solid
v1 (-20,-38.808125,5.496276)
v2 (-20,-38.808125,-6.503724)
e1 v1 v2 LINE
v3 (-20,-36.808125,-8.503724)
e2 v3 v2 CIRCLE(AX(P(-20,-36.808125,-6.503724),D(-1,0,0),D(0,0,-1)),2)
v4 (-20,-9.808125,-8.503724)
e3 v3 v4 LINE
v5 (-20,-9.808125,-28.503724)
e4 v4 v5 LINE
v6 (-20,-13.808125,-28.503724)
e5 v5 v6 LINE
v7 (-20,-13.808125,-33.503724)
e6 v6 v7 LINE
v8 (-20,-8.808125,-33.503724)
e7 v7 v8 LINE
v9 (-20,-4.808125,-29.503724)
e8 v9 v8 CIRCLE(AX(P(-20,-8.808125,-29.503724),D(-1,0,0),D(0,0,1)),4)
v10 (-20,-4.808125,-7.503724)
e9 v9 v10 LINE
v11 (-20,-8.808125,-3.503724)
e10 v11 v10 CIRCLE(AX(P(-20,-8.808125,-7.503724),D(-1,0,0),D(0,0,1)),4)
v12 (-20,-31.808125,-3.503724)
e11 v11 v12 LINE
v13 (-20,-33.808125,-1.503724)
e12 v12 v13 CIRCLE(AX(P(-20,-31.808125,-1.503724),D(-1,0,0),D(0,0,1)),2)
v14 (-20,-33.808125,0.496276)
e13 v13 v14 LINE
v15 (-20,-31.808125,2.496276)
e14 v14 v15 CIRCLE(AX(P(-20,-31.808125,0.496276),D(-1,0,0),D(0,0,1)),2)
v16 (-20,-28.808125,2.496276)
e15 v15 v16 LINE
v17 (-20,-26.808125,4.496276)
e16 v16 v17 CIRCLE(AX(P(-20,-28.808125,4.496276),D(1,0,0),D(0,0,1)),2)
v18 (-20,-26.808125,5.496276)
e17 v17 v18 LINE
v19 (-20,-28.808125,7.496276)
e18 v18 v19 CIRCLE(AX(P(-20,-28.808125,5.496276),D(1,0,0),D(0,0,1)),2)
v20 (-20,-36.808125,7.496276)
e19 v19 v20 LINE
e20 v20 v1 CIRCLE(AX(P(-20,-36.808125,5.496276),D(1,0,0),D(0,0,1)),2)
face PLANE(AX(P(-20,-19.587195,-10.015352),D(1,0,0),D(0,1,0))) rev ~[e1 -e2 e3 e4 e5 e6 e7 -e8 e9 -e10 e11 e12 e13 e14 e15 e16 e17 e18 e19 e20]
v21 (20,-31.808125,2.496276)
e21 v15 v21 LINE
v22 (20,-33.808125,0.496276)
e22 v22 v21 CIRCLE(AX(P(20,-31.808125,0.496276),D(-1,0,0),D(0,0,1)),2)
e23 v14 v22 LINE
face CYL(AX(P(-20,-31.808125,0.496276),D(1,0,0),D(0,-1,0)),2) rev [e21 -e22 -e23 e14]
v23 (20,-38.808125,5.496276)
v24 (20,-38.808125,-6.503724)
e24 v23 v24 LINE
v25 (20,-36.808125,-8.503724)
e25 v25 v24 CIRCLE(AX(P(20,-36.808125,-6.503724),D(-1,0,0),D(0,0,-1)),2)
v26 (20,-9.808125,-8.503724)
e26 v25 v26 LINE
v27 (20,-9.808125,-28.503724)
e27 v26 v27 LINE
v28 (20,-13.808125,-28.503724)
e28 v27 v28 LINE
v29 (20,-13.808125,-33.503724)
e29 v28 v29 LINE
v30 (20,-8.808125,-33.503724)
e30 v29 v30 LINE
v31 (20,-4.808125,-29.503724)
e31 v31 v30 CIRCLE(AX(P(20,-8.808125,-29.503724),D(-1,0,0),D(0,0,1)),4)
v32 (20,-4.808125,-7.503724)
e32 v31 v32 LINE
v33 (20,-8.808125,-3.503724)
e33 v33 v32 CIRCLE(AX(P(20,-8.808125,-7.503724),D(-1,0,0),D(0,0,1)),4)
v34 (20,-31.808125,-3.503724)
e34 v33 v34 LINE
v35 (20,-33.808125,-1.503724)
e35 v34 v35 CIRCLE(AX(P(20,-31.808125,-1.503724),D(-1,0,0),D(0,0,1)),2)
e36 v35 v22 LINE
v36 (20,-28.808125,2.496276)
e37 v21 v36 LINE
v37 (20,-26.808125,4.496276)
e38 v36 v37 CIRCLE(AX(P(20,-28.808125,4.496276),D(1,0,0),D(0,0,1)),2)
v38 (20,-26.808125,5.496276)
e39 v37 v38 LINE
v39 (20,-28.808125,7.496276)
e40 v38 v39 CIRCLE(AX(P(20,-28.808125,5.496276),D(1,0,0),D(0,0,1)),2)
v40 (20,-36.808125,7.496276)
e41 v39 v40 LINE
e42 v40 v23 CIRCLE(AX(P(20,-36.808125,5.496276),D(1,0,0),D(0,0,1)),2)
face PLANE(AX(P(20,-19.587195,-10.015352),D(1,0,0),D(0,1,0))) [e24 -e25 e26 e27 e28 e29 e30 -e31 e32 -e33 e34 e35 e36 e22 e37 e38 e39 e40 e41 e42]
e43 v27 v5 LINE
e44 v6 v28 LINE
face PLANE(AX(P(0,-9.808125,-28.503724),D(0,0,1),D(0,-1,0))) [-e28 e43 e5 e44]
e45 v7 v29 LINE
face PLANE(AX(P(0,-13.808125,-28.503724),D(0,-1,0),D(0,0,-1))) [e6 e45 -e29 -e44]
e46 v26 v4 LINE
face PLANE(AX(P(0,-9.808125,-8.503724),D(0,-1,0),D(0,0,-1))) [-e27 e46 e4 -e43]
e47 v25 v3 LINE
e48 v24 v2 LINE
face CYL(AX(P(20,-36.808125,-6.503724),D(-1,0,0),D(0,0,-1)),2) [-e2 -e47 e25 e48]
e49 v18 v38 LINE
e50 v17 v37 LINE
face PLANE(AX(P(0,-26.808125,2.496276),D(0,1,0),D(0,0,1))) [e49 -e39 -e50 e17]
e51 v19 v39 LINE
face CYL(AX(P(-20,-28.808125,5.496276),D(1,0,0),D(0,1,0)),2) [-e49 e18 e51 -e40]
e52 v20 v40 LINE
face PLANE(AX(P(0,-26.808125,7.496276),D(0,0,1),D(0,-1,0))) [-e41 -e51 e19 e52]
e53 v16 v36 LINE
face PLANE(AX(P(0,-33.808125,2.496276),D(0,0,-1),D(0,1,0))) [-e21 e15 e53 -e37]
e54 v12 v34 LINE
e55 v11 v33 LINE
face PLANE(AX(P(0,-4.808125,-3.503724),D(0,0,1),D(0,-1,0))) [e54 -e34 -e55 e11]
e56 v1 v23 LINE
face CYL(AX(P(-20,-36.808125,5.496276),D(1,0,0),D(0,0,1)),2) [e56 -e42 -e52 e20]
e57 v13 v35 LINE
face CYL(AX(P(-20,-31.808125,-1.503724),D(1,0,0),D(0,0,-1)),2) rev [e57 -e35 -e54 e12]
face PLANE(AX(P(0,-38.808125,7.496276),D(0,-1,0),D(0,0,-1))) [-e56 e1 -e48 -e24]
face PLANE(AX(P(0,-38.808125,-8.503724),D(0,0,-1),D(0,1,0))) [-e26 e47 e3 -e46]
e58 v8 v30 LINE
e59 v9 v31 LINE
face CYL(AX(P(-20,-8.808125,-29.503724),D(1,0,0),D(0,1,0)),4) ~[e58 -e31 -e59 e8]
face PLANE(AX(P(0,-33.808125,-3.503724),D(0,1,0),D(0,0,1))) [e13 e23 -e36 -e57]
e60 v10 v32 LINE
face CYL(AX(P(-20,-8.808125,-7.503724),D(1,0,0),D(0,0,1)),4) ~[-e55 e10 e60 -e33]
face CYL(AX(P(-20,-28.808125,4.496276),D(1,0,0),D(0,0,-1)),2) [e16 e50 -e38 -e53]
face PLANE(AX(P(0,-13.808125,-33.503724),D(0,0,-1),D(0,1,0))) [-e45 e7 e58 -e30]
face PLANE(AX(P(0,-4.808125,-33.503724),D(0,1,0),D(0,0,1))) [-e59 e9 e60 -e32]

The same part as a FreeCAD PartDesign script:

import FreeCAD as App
import Part
import Sketcher


def edges_at(feature, points):
    """Names of the edges that pass closest to the given points."""
    edges = feature.Shape.Edges
    near = lambda p: min(range(len(edges)), key=lambda i: edges[i].distToShape(Part.Vertex(*p))[0])
    return sorted({f"Edge{near(p) + 1}" for p in points})

doc = App.newDocument("Part")
body = doc.addObject("PartDesign::Body", "Body")

sketch1 = body.newObject("Sketcher::SketchObject", "Sketch")
sketch1.AttachmentSupport = (doc.getObject("YZ_Plane"), [""])
sketch1.MapMode = "FlatFace"
sketch1.addGeometry(Part.LineSegment(App.Vector(-9.8, -28.5, 0), App.Vector(-13.8, -28.5, 0)), False)
sketch1.addGeometry(Part.LineSegment(App.Vector(-13.8, -28.5, 0), App.Vector(-13.8, -33.5, 0)), False)
sketch1.addGeometry(Part.LineSegment(App.Vector(-13.8, -33.5, 0), App.Vector(-4.8, -33.5, 0)), False)
sketch1.addGeometry(Part.LineSegment(App.Vector(-4.8, -33.5, 0), App.Vector(-4.8, -3.5, 0)), False)
sketch1.addGeometry(Part.LineSegment(App.Vector(-4.8, -3.5, 0), App.Vector(-33.8, -3.5, 0)), False)
sketch1.addGeometry(Part.LineSegment(App.Vector(-33.8, -3.5, 0), App.Vector(-33.8, 2.5, 0)), False)
sketch1.addGeometry(Part.LineSegment(App.Vector(-33.8, 2.5, 0), App.Vector(-26.8, 2.5, 0)), False)
sketch1.addGeometry(Part.LineSegment(App.Vector(-26.8, 2.5, 0), App.Vector(-26.8, 7.5, 0)), False)
sketch1.addGeometry(Part.LineSegment(App.Vector(-26.8, 7.5, 0), App.Vector(-38.8, 7.5, 0)), False)
sketch1.addGeometry(Part.LineSegment(App.Vector(-38.8, 7.5, 0), App.Vector(-38.8, -8.5, 0)), False)
sketch1.addGeometry(Part.LineSegment(App.Vector(-38.8, -8.5, 0), App.Vector(-9.8, -8.5, 0)), False)
sketch1.addGeometry(Part.LineSegment(App.Vector(-9.8, -8.5, 0), App.Vector(-9.8, -28.5, 0)), False)
sketch1.addConstraint(Sketcher.Constraint("Coincident", 0, 2, 1, 1))
sketch1.addConstraint(Sketcher.Constraint("Coincident", 1, 2, 2, 1))
sketch1.addConstraint(Sketcher.Constraint("Coincident", 2, 2, 3, 1))
sketch1.addConstraint(Sketcher.Constraint("Coincident", 3, 2, 4, 1))
sketch1.addConstraint(Sketcher.Constraint("Coincident", 4, 2, 5, 1))
sketch1.addConstraint(Sketcher.Constraint("Coincident", 5, 2, 6, 1))
sketch1.addConstraint(Sketcher.Constraint("Coincident", 6, 2, 7, 1))
sketch1.addConstraint(Sketcher.Constraint("Coincident", 7, 2, 8, 1))
sketch1.addConstraint(Sketcher.Constraint("Coincident", 8, 2, 9, 1))
sketch1.addConstraint(Sketcher.Constraint("Coincident", 9, 2, 10, 1))
sketch1.addConstraint(Sketcher.Constraint("Coincident", 10, 2, 11, 1))
sketch1.addConstraint(Sketcher.Constraint("Coincident", 11, 2, 0, 1))
sketch1.addConstraint(Sketcher.Constraint("Horizontal", 0))
sketch1.addConstraint(Sketcher.Constraint("Vertical", 1))
sketch1.addConstraint(Sketcher.Constraint("Horizontal", 2))
sketch1.addConstraint(Sketcher.Constraint("Vertical", 3))
sketch1.addConstraint(Sketcher.Constraint("Horizontal", 4))
sketch1.addConstraint(Sketcher.Constraint("Vertical", 5))
sketch1.addConstraint(Sketcher.Constraint("Horizontal", 6))
sketch1.addConstraint(Sketcher.Constraint("Vertical", 7))
sketch1.addConstraint(Sketcher.Constraint("Horizontal", 8))
sketch1.addConstraint(Sketcher.Constraint("Vertical", 9))
sketch1.addConstraint(Sketcher.Constraint("Horizontal", 10))
sketch1.addConstraint(Sketcher.Constraint("Vertical", 11))
sketch1.addConstraint(Sketcher.Constraint("Equal", 4, 10))
sketch1.addConstraint(Sketcher.Constraint("Equal", 1, 7))
sketch1.addConstraint(Sketcher.Constraint("DistanceX", 0, 2, 0, 1, 4.0))
sketch1.addConstraint(Sketcher.Constraint("DistanceX", 2, 1, 2, 2, 9.0))
sketch1.addConstraint(Sketcher.Constraint("DistanceX", 4, 2, 4, 1, 29.0))
sketch1.addConstraint(Sketcher.Constraint("DistanceX", 6, 1, 6, 2, 7.0))
sketch1.addConstraint(Sketcher.Constraint("DistanceY", 1, 2, 1, 1, 5.0))
sketch1.addConstraint(Sketcher.Constraint("DistanceY", 3, 1, 3, 2, 30.0))
sketch1.addConstraint(Sketcher.Constraint("DistanceY", 5, 1, 5, 2, 6.0))
sketch1.addConstraint(Sketcher.Constraint("DistanceY", 9, 2, 9, 1, 16.0))
sketch1.addConstraint(Sketcher.Constraint("DistanceX", 0, 2, -1, 1, 13.808125))
sketch1.addConstraint(Sketcher.Constraint("DistanceY", 0, 2, -1, 1, 28.503724))
pad1 = body.newObject("PartDesign::Pad", "Pad")
pad1.Profile = sketch1
pad1.Length = 40
pad1.Midplane = True
doc.recompute()

fillet = body.newObject("PartDesign::Fillet", "Fillet")
fillet.Base = (pad1, edges_at(pad1, [(0, -4.808, -3.504)]))
fillet.Radius = 4
doc.recompute()

fillet2 = body.newObject("PartDesign::Fillet", "Fillet001")
fillet2.Base = (fillet, edges_at(fillet, [(0, -4.808, -33.504)]))
fillet2.Radius = 4
doc.recompute()

fillet3 = body.newObject("PartDesign::Fillet", "Fillet002")
fillet3.Base = (fillet2, edges_at(fillet2, [
    (0, -33.808, 2.496),
    (0, -26.808, 2.496),
    (0, -26.808, 7.496),
    (0, -38.808, 7.496),
    (0, -38.808, -8.504),
    (0, -33.808, -3.504),
]))
fillet3.Radius = 2

doc.recompute()
